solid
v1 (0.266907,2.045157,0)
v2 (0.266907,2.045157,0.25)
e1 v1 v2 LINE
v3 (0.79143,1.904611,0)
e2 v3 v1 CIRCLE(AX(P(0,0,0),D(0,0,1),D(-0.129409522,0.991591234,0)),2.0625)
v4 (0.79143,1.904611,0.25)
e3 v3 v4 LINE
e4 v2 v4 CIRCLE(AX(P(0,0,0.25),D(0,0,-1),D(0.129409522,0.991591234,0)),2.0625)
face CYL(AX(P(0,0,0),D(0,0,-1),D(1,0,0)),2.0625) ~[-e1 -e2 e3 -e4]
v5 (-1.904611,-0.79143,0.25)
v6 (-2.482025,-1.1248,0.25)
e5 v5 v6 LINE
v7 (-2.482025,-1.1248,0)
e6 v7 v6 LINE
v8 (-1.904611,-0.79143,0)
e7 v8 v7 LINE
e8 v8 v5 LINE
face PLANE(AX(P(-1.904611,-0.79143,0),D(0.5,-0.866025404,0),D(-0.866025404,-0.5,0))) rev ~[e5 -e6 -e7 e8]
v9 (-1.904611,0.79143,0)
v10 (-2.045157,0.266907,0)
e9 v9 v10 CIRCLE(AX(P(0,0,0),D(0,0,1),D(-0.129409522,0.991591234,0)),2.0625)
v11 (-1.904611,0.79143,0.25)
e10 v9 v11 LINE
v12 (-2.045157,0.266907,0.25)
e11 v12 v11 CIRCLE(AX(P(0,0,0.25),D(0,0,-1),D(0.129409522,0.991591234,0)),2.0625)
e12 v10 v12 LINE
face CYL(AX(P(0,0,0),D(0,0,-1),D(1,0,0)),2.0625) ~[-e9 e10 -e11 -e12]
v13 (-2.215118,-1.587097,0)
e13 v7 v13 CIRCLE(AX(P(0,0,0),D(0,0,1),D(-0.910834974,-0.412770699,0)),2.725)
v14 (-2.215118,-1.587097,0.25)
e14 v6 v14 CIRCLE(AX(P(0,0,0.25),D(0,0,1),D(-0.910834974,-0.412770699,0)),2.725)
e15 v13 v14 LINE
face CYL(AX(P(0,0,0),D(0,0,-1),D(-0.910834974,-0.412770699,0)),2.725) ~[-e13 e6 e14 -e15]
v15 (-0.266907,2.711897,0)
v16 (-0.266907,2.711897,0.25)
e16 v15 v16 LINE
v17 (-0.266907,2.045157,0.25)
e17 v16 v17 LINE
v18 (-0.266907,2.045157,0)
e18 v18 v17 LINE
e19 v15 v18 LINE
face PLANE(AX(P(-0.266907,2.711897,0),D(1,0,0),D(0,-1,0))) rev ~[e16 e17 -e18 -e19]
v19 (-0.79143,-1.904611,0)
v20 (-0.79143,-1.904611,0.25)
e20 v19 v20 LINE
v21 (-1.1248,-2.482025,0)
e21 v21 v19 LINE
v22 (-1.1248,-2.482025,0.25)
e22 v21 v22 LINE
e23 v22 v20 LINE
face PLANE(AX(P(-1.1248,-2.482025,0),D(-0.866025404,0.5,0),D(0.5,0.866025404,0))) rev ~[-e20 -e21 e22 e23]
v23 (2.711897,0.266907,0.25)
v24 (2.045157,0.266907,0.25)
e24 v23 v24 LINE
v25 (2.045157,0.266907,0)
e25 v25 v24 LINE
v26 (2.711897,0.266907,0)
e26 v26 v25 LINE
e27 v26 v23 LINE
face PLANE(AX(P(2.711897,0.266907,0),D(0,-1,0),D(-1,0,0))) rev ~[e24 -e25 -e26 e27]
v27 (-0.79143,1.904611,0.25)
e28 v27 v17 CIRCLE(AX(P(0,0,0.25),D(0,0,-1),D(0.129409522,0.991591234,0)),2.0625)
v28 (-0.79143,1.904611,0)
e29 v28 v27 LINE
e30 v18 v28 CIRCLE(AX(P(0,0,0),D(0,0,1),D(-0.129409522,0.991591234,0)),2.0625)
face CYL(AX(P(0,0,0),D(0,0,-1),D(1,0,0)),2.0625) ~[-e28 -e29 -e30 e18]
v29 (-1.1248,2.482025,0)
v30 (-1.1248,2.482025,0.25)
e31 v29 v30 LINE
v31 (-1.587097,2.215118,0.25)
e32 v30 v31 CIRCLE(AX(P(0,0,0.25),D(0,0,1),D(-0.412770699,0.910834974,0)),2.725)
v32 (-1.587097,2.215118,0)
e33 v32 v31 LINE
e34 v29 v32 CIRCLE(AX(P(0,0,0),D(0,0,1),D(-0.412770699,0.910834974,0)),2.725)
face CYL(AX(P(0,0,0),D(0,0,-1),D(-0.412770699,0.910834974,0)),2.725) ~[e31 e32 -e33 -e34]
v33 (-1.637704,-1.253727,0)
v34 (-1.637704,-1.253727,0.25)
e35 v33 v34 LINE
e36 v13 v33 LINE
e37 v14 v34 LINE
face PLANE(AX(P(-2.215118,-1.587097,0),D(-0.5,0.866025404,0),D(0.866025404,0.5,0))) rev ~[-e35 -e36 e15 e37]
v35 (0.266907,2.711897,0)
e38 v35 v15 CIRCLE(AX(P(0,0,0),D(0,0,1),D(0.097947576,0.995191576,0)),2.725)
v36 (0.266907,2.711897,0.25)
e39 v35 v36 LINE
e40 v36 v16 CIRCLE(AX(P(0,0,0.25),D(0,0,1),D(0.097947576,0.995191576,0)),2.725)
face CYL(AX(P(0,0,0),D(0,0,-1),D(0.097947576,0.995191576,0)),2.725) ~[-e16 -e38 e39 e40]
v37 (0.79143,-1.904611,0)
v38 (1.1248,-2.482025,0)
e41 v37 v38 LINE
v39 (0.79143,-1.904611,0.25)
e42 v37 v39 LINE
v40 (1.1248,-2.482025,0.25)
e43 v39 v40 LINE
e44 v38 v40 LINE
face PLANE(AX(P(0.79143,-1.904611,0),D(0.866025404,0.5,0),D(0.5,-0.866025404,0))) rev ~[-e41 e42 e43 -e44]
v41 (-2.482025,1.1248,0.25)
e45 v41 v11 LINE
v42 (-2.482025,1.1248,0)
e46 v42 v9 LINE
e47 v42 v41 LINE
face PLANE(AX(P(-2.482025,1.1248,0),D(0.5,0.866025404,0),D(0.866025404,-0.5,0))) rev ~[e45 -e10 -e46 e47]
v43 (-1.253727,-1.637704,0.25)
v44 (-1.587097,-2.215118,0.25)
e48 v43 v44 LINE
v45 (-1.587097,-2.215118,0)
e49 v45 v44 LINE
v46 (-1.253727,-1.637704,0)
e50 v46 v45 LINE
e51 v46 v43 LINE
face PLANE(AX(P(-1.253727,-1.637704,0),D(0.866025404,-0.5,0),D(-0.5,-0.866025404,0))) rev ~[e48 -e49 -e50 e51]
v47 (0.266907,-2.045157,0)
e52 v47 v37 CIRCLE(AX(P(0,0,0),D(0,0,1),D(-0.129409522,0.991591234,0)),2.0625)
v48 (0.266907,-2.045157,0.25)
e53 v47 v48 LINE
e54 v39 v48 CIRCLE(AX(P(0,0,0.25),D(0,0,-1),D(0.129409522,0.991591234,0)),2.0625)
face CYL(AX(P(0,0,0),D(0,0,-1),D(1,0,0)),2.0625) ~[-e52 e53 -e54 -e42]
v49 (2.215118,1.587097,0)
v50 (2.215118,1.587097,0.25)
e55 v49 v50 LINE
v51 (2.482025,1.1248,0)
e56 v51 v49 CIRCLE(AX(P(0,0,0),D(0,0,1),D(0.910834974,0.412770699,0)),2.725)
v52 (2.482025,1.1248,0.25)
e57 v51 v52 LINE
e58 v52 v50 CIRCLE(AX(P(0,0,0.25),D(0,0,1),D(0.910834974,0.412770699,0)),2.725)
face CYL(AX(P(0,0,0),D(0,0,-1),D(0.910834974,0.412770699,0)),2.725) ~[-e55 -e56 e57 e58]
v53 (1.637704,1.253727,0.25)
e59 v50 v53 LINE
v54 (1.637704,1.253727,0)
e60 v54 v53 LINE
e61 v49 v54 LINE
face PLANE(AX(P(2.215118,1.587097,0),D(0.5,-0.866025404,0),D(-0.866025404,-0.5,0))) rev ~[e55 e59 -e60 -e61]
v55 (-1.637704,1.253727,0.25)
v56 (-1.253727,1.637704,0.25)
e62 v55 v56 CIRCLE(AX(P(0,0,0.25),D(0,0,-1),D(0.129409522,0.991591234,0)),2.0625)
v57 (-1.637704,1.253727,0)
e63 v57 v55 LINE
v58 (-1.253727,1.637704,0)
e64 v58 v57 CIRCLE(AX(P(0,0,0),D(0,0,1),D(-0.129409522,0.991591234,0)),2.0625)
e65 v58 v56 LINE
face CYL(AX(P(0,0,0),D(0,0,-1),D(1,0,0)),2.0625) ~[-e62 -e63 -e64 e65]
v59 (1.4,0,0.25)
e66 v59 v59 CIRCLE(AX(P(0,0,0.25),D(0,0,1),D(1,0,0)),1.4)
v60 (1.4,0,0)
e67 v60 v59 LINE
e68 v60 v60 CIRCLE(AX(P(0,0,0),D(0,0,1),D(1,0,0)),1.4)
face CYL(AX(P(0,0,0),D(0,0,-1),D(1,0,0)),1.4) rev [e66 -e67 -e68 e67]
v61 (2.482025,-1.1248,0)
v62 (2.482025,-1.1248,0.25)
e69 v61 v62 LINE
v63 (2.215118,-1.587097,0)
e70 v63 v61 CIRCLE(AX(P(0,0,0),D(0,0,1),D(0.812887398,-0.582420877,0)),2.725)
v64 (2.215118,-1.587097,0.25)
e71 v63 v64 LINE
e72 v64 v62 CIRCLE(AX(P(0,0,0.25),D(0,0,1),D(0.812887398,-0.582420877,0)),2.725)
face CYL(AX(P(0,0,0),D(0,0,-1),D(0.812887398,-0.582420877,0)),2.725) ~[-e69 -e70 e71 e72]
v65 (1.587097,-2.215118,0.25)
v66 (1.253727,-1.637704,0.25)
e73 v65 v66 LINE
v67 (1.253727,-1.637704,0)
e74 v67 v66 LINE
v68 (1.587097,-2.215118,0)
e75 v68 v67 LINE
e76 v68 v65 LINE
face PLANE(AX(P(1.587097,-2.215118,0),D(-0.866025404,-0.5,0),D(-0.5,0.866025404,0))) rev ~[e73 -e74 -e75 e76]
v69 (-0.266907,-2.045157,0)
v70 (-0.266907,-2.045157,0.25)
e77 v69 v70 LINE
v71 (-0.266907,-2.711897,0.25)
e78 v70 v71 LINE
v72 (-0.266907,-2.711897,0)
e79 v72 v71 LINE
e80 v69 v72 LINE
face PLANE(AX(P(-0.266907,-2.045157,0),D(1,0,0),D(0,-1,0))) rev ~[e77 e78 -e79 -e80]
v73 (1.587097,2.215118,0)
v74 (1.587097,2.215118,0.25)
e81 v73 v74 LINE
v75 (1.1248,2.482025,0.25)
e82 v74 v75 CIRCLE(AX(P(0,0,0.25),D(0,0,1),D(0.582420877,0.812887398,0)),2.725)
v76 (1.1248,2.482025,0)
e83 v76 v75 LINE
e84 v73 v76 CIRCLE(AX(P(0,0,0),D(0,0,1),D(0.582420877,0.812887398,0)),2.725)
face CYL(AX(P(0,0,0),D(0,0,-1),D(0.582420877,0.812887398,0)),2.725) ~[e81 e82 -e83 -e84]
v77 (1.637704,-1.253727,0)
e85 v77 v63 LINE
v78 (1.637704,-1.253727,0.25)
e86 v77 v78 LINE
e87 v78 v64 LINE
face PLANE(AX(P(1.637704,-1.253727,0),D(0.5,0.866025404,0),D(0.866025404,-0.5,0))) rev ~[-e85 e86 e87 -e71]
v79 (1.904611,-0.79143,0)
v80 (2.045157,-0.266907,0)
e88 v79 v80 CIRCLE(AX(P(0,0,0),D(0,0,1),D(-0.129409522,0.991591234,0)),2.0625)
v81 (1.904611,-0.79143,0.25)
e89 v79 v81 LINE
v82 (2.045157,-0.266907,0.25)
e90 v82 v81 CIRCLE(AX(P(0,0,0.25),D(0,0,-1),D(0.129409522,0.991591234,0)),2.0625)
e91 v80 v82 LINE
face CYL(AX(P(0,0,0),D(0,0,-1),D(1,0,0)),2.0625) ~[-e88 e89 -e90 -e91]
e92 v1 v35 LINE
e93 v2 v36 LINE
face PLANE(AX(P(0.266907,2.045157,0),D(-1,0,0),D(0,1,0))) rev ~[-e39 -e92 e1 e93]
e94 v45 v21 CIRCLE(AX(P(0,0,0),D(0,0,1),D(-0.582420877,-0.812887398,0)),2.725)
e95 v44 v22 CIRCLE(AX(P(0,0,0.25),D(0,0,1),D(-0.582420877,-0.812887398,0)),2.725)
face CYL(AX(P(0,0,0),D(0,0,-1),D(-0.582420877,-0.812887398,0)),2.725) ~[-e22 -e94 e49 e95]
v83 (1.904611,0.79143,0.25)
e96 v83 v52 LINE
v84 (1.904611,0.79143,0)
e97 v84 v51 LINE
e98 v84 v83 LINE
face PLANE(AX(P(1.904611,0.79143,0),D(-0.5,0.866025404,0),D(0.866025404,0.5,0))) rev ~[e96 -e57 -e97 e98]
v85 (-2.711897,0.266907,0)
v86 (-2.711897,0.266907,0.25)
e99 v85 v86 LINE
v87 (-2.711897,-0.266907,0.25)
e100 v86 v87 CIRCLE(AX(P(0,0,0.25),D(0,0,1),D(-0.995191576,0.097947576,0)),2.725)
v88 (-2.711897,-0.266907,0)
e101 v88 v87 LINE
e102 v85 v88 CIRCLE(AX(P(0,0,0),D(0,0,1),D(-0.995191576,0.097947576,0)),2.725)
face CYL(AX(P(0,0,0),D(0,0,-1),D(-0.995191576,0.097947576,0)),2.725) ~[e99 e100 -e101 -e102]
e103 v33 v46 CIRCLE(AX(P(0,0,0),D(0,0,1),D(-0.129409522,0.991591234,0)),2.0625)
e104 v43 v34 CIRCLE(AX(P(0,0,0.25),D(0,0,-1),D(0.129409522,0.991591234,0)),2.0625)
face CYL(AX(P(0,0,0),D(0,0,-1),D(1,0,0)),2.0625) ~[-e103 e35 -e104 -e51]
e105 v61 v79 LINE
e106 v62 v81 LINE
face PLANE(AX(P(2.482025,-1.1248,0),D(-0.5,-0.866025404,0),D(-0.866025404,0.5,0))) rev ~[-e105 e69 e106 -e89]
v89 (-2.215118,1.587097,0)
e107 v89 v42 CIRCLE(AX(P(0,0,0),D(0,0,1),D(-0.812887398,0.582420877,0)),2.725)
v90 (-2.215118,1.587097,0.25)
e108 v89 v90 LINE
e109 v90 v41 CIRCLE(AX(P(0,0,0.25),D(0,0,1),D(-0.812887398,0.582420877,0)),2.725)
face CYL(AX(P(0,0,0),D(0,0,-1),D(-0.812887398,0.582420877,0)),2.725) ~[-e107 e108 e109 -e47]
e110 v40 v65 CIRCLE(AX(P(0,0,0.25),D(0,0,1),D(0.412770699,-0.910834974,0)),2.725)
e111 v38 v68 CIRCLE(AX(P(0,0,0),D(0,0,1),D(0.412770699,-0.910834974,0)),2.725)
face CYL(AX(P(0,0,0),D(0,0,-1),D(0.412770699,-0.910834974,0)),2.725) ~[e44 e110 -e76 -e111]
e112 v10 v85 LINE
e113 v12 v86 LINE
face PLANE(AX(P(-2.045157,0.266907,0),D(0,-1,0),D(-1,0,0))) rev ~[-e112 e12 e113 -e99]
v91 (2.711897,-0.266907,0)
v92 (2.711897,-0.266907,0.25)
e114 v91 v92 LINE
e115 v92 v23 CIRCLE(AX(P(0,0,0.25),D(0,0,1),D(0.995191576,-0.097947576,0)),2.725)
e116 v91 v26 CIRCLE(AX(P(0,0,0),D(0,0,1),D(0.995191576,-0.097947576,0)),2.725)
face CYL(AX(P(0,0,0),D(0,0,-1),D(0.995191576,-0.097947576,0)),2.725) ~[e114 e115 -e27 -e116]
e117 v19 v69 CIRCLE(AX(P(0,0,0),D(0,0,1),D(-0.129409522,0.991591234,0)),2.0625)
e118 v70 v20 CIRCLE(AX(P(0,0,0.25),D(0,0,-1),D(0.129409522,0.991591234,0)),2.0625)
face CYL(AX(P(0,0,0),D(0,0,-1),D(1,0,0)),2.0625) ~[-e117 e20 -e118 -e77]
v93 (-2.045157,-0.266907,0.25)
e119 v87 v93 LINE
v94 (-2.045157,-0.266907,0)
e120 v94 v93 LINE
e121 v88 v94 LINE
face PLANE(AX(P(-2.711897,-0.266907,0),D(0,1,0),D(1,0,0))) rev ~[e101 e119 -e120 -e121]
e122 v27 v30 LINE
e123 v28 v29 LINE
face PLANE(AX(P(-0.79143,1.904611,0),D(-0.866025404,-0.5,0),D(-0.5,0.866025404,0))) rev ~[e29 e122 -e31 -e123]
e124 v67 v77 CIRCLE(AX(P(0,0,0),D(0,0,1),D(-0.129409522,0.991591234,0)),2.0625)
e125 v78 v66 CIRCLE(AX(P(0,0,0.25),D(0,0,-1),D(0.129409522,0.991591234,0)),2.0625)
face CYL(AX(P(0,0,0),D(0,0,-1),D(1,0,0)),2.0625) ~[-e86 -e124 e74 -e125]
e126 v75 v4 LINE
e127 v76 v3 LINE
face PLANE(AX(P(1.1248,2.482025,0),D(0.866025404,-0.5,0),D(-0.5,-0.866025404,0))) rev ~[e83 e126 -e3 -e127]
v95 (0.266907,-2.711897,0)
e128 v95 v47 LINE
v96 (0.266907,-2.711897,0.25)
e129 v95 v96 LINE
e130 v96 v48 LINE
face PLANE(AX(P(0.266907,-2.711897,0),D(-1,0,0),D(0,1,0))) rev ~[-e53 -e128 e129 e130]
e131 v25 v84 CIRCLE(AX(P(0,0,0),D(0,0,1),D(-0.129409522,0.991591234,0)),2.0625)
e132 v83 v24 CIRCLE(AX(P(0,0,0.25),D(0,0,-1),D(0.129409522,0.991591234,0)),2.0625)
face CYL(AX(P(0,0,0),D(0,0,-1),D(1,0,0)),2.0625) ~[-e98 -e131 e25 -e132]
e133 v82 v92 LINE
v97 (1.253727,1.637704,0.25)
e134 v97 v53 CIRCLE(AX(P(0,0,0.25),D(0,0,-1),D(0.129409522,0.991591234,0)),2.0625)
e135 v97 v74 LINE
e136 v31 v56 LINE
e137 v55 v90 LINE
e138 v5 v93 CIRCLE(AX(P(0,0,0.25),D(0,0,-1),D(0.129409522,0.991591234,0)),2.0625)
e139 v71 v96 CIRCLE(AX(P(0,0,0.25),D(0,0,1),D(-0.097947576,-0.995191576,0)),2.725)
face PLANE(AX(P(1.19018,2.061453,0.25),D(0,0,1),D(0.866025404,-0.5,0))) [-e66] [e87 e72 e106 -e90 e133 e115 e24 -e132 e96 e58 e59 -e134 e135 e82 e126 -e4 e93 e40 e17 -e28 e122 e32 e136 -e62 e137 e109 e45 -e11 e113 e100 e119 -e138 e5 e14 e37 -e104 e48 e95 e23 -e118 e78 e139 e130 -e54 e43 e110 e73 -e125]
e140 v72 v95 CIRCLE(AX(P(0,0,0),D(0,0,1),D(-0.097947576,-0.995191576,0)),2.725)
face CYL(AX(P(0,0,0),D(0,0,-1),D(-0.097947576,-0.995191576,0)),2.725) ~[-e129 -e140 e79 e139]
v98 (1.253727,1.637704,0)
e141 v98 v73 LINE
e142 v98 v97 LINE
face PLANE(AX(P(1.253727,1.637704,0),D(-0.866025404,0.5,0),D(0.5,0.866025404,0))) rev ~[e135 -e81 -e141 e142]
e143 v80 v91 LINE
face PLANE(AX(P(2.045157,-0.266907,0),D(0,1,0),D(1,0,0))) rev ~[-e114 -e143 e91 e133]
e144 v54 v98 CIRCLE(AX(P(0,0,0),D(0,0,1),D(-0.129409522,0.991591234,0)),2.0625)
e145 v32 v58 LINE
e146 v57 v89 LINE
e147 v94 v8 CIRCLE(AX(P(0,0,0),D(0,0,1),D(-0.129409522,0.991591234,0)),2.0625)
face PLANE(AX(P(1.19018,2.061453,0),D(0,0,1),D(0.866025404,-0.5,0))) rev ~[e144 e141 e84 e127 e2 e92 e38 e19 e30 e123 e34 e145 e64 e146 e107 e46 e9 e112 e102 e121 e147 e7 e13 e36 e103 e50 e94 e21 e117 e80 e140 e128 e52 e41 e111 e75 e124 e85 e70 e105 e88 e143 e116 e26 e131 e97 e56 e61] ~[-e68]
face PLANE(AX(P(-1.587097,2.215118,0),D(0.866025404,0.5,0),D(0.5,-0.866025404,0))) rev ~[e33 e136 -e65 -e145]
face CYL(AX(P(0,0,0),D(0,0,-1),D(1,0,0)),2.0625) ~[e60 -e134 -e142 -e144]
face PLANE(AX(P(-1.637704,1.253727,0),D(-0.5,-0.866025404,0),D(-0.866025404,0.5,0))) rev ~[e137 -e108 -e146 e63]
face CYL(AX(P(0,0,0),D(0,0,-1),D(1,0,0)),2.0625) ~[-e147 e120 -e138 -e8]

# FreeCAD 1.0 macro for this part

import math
import FreeCAD as App
import Part
import Sketcher
from FreeCAD import Vector
Q = App.Units.Quantity

doc = App.newDocument("Part")
body = doc.addObject("PartDesign::Body", "Body")

# Sketch on XY plane
sketch1 = doc.addObject("Sketcher::SketchObject", "Sketch")
body.addObject(sketch1)
sketch1.AttachmentSupport = (doc.XY_Plane, [""])
sketch1.MapMode = "FlatFace"
sketch1.addGeometry([
    Part.Circle(Vector(0, 0, 0), Vector(0, 0, 1), 2.0625),
    Part.Circle(Vector(0, 0, 0), Vector(0, 0, 1), 1.4),
], False)
sketch1.addConstraint([
    Sketcher.Constraint("Coincident", 0, 3, -1, 1),
    Sketcher.Constraint("Coincident", 1, 3, -1, 1),
    Sketcher.Constraint("Diameter", 1, Q("2.8 mm")),
    Sketcher.Constraint("Diameter", 0, Q("4.125 mm")),
])
pad1 = doc.addObject("PartDesign::Pad", "Pad")
body.addObject(pad1)
pad1.Profile = sketch1
pad1.Length = 0.25

# Sketch on XY plane
sketch2 = doc.addObject("Sketcher::SketchObject", "Sketch001")
body.addObject(sketch2)
sketch2.AttachmentSupport = (doc.XY_Plane, [""])
sketch2.MapMode = "FlatFace"
sketch2.addGeometry([
    Part.LineSegment(Vector(-0.266907, 2.711897, 0), Vector(-0.266907, 2.045157, 0)),
    Part.LineSegment(Vector(-0.266907, 2.045157, 0), Vector(0.266907, 2.045157, 0)),
    Part.LineSegment(Vector(0.266907, 2.045157, 0), Vector(0.266907, 2.711897, 0)),
    Part.ArcOfCircle(Part.Circle(Vector(0, 0, 0), Vector(0, 0, 1), 2.725), math.radians(84.379005), math.radians(95.620995)),
], False)
sketch2.addConstraint([
    Sketcher.Constraint("Coincident", 0, 2, 1, 1),
    Sketcher.Constraint("Coincident", 1, 2, 2, 1),
    Sketcher.Constraint("Coincident", 2, 2, 3, 1),
    Sketcher.Constraint("Coincident", 3, 2, 0, 1),
    Sketcher.Constraint("Vertical", 0),
    Sketcher.Constraint("Horizontal", 1),
    Sketcher.Constraint("Vertical", 2),
    Sketcher.Constraint("Coincident", 3, 3, -1, 1),
    Sketcher.Constraint("Horizontal", 2, 2, 3, 2),
    Sketcher.Constraint("Radius", 3, Q("2.725 mm")),
    Sketcher.Constraint("DistanceY", 0, 2, 0, 1, Q("0.66674 mm")),
    Sketcher.Constraint("DistanceX", 1, 1, 1, 2, Q("0.533814 mm")),
])
pad2 = doc.addObject("PartDesign::Pad", "Pad001")
body.addObject(pad2)
pad2.Profile = sketch2
pad2.Length = 0.25
doc.recompute()

polarpattern = doc.addObject("PartDesign::PolarPattern", "PolarPattern")
body.addObject(polarpattern)
polarpattern.Originals = [pad2]
polarpattern.Axis = (doc.Z_Axis, [""])
polarpattern.Angle = 360
polarpattern.Occurrences = 12
body.Tip = polarpattern

doc.recompute()
